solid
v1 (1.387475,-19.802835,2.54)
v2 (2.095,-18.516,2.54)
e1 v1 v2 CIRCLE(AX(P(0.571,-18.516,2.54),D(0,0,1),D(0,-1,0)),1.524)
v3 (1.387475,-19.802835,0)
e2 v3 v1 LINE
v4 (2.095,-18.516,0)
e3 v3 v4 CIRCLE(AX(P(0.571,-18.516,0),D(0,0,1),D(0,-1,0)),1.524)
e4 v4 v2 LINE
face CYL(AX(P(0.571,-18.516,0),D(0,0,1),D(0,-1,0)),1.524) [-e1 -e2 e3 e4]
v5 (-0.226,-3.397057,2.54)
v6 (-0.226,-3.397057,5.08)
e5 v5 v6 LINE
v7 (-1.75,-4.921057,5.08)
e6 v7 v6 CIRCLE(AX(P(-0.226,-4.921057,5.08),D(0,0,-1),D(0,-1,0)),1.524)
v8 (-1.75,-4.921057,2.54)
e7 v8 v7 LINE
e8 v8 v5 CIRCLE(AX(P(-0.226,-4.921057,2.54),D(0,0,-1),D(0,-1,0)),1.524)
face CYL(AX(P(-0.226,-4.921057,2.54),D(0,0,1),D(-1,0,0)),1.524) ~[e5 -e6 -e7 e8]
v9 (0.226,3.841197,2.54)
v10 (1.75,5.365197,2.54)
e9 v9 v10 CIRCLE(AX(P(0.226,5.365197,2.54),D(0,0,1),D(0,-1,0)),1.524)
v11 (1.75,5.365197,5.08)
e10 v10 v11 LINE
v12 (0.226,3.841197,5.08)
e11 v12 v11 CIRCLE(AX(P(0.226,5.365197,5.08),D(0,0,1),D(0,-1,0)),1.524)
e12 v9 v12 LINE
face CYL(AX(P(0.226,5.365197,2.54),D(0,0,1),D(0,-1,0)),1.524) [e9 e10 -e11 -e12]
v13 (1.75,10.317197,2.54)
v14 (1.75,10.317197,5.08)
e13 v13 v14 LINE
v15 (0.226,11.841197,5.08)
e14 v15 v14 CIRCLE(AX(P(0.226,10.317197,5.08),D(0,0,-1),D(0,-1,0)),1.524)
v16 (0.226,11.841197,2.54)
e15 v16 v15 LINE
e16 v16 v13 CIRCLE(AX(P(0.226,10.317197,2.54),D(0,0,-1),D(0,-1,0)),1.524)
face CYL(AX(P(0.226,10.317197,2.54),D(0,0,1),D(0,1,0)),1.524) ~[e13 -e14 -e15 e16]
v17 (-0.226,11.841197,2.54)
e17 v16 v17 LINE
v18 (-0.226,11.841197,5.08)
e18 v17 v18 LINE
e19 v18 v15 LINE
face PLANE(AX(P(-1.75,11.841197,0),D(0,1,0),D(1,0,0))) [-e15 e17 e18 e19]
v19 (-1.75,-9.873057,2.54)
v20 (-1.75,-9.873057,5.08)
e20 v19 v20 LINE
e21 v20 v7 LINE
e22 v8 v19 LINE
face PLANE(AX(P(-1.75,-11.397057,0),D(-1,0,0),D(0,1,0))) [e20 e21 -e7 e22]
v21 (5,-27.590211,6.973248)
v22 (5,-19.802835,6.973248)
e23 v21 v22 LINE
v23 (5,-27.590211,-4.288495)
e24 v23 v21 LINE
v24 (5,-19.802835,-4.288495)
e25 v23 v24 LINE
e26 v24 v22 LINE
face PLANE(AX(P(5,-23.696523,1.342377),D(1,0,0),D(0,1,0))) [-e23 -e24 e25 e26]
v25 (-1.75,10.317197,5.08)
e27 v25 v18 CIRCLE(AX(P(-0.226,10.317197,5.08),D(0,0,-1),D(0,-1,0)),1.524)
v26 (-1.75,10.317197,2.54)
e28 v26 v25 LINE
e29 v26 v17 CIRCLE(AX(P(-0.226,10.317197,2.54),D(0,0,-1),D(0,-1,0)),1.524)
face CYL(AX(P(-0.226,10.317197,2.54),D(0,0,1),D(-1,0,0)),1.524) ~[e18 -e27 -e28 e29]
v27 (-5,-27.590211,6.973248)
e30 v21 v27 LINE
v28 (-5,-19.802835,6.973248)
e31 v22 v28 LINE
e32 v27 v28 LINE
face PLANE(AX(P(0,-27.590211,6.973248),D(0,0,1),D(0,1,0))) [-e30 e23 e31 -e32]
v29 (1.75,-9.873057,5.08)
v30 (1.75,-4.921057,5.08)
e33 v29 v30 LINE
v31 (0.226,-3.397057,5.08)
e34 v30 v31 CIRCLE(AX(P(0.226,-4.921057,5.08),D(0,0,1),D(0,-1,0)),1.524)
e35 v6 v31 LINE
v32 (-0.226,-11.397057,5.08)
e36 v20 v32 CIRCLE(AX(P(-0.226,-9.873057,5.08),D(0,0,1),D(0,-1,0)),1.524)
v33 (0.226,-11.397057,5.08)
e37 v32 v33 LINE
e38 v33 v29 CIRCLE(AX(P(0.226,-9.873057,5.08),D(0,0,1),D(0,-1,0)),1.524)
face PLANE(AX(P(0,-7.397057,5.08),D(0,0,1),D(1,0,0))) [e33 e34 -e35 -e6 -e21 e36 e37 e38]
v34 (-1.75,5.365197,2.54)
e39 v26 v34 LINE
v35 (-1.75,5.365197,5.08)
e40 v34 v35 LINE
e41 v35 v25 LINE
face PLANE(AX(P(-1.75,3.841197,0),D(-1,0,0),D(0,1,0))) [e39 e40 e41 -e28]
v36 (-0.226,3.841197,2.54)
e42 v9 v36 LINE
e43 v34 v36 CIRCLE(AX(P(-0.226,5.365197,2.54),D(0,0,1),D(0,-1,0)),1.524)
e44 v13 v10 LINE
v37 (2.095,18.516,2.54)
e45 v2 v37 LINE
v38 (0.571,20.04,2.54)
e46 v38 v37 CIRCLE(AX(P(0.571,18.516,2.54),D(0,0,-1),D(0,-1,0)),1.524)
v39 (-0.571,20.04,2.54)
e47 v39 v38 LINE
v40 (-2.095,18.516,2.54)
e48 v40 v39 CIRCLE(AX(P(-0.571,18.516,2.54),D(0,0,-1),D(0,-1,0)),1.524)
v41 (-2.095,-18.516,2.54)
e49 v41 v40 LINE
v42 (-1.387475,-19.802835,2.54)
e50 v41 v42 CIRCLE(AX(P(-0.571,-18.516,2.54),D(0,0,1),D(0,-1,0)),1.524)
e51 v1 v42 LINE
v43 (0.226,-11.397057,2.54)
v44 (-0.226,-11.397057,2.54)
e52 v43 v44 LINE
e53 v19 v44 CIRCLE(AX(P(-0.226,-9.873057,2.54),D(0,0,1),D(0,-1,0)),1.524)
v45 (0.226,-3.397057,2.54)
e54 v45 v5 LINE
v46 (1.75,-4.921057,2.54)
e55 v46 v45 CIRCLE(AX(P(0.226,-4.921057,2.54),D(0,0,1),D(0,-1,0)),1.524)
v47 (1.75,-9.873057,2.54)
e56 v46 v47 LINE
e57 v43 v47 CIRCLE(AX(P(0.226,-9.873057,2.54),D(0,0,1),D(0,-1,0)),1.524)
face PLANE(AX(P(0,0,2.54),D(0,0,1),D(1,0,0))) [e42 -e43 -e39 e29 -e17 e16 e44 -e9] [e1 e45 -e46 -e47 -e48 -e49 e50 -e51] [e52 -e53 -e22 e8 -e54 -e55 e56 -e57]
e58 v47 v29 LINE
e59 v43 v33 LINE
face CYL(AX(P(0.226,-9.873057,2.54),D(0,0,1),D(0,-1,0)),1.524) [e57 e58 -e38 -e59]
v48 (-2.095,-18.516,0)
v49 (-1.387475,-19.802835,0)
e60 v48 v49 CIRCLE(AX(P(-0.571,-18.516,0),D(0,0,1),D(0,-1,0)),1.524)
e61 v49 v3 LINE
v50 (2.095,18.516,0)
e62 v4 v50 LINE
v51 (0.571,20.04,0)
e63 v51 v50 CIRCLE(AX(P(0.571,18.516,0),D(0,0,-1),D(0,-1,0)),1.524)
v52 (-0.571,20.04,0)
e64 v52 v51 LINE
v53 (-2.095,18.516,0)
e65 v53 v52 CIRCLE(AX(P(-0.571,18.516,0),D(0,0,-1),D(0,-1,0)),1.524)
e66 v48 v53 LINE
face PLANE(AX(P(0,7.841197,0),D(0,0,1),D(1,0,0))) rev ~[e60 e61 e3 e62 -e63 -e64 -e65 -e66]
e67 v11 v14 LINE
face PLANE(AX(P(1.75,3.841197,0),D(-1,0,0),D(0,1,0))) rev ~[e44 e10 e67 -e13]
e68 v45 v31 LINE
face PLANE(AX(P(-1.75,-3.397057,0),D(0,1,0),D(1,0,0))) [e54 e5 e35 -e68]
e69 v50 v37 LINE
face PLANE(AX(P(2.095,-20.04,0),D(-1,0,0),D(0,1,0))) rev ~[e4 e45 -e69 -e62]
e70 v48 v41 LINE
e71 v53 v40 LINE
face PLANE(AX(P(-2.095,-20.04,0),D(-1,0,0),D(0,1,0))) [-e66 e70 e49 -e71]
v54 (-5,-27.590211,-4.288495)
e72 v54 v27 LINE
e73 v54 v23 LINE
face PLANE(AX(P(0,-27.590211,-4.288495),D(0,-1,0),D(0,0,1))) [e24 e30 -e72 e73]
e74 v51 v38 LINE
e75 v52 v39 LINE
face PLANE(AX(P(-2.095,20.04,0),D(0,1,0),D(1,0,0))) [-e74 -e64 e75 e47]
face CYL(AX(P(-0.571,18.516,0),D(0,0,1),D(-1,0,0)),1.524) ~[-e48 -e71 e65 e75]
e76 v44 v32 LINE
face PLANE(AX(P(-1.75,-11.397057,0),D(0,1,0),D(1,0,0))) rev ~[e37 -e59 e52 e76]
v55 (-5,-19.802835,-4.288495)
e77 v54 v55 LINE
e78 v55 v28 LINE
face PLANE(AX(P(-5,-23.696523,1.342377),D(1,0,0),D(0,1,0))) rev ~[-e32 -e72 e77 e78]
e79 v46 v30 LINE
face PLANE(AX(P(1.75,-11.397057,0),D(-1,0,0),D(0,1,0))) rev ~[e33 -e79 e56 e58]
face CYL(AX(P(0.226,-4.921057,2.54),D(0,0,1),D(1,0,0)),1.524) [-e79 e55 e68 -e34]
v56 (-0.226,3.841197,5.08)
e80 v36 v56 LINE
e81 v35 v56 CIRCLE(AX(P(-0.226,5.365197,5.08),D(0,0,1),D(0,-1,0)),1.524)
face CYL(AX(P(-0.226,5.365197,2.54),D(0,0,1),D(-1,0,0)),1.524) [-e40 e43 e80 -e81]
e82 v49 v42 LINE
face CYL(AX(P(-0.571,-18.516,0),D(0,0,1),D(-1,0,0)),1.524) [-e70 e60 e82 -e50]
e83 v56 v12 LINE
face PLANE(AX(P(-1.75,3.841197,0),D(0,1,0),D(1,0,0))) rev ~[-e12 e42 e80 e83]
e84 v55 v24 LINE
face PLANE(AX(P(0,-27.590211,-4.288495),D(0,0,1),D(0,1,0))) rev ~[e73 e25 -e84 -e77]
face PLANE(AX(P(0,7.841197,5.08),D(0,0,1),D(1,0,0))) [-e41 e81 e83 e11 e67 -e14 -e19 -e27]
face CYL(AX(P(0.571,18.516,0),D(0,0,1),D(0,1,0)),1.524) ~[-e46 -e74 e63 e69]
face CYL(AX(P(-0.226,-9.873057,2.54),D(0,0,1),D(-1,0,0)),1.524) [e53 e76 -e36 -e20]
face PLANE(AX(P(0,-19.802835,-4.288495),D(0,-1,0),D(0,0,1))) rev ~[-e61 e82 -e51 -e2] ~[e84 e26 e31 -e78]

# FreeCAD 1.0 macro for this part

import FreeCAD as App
import Part
import Sketcher

V = App.Vector


def edges_at(feature, points):
    """Names of the edges that pass closest to the given points."""
    edges = feature.Shape.Edges
    near = lambda p: min(range(len(edges)), key=lambda i: edges[i].distToShape(Part.Vertex(*p))[0])
    return sorted({f"Edge{near(p) + 1}" for p in points})


def add_polygon(sketch, points):
    """Adds a closed chain of lines whose ends are joined by coincident constraints."""
    first, n = sketch.GeometryCount, len(points)
    for a, b in zip(points, points[1:] + points[:1]):
        sketch.addGeometry(Part.LineSegment(App.Vector(*a, 0), App.Vector(*b, 0)), False)
    for i in range(n):
        sketch.addConstraint(Sketcher.Constraint("Coincident", first + i, 2, first + (i + 1) % n, 1))

doc = App.newDocument("Part")
body = doc.addObject("PartDesign::Body", "Body")

# Sketch on XY plane
sketch1 = doc.addObject("Sketcher::SketchObject", "Sketch")
body.addObject(sketch1)
sketch1.AttachmentSupport = (doc.XY_Plane, [""])
sketch1.MapMode = "FlatFace"
add_polygon(sketch1, [(-2.1, 20), (-2.1, -20), (2.1, -20), (2.1, 20)])  # lines 0-3
sketch1.addConstraint([
    Sketcher.Constraint("Vertical", 0),
    Sketcher.Constraint("Horizontal", 1),
    Sketcher.Constraint("Vertical", 2),
    Sketcher.Constraint("Horizontal", 3),
    Sketcher.Constraint("Symmetric", 0, 2, 2, 2, -1, 1),
    Sketcher.Constraint("DistanceX", 1, 1, 1, 2, 4.19),
    Sketcher.Constraint("DistanceY", 0, 2, 0, 1, 40.08),
])
pad1 = doc.addObject("PartDesign::Pad", "Pad")
body.addObject(pad1)
pad1.Profile = sketch1
pad1.Length = 2.54

# Sketch on XY plane
sketch2 = doc.addObject("Sketcher::SketchObject", "Sketch001")
body.addObject(sketch2)
sketch2.AttachmentSupport = (doc.XY_Plane, [""])
sketch2.MapMode = "FlatFace"
add_polygon(sketch2, [(-1.8, 11.8), (-1.8, 3.8), (1.8, 3.8), (1.8, 11.8)])  # lines 0-3
add_polygon(sketch2, [(-1.8, -3.4), (-1.8, -11.4), (1.8, -11.4), (1.8, -3.4)])  # lines 4-7
sketch2.addConstraint([
    Sketcher.Constraint("Vertical", 0),
    Sketcher.Constraint("Horizontal", 1),
    Sketcher.Constraint("Vertical", 2),
    Sketcher.Constraint("Horizontal", 3),
    Sketcher.Constraint("Vertical", 4),
    Sketcher.Constraint("Horizontal", 5),
    Sketcher.Constraint("Vertical", 6),
    Sketcher.Constraint("Horizontal", 7),
    Sketcher.Constraint("Vertical", 3, 2, 4, 2),
    Sketcher.Constraint("Vertical", 2, 2, 5, 2),
    Sketcher.Constraint("Equal", 2, 4),
    Sketcher.Constraint("DistanceY", 0, 2, 0, 1, 8.0),
    Sketcher.Constraint("DistanceX", 1, 1, 1, 2, 3.5),
    Sketcher.Constraint("DistanceX", 0, 2, -1, 1, 1.75),
    Sketcher.Constraint("DistanceY", -1, 1, 0, 2, 3.841197),
    Sketcher.Constraint("DistanceY", 4, 2, -1, 1, 11.397057),
])
pad2 = doc.addObject("PartDesign::Pad", "Pad001")
body.addObject(pad2)
pad2.Profile = sketch2
pad2.Length = 5.08
doc.recompute()

fillet = doc.addObject("PartDesign::Fillet", "Fillet")
body.addObject(fillet)
fillet.Base = (pad2, edges_at(pad2, [(-1.75, 11.841, 3.81)]))
fillet.Radius = 1.524
doc.recompute()

fillet2 = doc.addObject("PartDesign::Fillet", "Fillet001")
body.addObject(fillet2)
fillet2.Base = (fillet, edges_at(fillet, [
    (1.75, 11.841, 3.81),
    (1.75, 3.841, 3.81),
    (1.75, -3.397, 3.81),
    (1.75, -11.397, 3.81),
    (-1.75, 3.841, 3.81),
    (-1.75, -11.397, 3.81),
    (-1.75, -3.397, 3.81),
]))
fillet2.Radius = 1.524
doc.recompute()

fillet3 = doc.addObject("PartDesign::Fillet", "Fillet002")
body.addObject(fillet3)
fillet3.Base = (fillet2, edges_at(fillet2, [
    (-2.095, 20.04, 1.27),
    (2.095, 20.04, 1.27),
    (2.095, -20.04, 1.27),
    (-2.095, -20.04, 1.27),
]))
fillet3.Radius = 1.524

# Sketch on YZ plane
sketch3 = doc.addObject("Sketcher::SketchObject", "Sketch002")
body.addObject(sketch3)
sketch3.AttachmentSupport = (doc.YZ_Plane, [""])
sketch3.MapMode = "FlatFace"
add_polygon(sketch3, [(-28, 7), (-28, -4), (-20, -4), (-20, 7)])  # lines 0-3
sketch3.addConstraint([
    Sketcher.Constraint("Vertical", 0),
    Sketcher.Constraint("Horizontal", 1),
    Sketcher.Constraint("Vertical", 2),
    Sketcher.Constraint("Horizontal", 3),
    Sketcher.Constraint("DistanceX", 1, 1, 1, 2, 7.787377),
    Sketcher.Constraint("DistanceY", 0, 2, 0, 1, 11.261743),
    Sketcher.Constraint("DistanceX", 0, 2, -1, 1, 27.590211),
    Sketcher.Constraint("DistanceY", -1, 1, 2, 2, 6.973248),
])
pad3 = doc.addObject("PartDesign::Pad", "Pad002")
body.addObject(pad3)
pad3.Profile = sketch3
pad3.Type = "TwoLengths"
pad3.Length = 5
pad3.Length2 = 5
pad3.Reversed = True

doc.recompute()
